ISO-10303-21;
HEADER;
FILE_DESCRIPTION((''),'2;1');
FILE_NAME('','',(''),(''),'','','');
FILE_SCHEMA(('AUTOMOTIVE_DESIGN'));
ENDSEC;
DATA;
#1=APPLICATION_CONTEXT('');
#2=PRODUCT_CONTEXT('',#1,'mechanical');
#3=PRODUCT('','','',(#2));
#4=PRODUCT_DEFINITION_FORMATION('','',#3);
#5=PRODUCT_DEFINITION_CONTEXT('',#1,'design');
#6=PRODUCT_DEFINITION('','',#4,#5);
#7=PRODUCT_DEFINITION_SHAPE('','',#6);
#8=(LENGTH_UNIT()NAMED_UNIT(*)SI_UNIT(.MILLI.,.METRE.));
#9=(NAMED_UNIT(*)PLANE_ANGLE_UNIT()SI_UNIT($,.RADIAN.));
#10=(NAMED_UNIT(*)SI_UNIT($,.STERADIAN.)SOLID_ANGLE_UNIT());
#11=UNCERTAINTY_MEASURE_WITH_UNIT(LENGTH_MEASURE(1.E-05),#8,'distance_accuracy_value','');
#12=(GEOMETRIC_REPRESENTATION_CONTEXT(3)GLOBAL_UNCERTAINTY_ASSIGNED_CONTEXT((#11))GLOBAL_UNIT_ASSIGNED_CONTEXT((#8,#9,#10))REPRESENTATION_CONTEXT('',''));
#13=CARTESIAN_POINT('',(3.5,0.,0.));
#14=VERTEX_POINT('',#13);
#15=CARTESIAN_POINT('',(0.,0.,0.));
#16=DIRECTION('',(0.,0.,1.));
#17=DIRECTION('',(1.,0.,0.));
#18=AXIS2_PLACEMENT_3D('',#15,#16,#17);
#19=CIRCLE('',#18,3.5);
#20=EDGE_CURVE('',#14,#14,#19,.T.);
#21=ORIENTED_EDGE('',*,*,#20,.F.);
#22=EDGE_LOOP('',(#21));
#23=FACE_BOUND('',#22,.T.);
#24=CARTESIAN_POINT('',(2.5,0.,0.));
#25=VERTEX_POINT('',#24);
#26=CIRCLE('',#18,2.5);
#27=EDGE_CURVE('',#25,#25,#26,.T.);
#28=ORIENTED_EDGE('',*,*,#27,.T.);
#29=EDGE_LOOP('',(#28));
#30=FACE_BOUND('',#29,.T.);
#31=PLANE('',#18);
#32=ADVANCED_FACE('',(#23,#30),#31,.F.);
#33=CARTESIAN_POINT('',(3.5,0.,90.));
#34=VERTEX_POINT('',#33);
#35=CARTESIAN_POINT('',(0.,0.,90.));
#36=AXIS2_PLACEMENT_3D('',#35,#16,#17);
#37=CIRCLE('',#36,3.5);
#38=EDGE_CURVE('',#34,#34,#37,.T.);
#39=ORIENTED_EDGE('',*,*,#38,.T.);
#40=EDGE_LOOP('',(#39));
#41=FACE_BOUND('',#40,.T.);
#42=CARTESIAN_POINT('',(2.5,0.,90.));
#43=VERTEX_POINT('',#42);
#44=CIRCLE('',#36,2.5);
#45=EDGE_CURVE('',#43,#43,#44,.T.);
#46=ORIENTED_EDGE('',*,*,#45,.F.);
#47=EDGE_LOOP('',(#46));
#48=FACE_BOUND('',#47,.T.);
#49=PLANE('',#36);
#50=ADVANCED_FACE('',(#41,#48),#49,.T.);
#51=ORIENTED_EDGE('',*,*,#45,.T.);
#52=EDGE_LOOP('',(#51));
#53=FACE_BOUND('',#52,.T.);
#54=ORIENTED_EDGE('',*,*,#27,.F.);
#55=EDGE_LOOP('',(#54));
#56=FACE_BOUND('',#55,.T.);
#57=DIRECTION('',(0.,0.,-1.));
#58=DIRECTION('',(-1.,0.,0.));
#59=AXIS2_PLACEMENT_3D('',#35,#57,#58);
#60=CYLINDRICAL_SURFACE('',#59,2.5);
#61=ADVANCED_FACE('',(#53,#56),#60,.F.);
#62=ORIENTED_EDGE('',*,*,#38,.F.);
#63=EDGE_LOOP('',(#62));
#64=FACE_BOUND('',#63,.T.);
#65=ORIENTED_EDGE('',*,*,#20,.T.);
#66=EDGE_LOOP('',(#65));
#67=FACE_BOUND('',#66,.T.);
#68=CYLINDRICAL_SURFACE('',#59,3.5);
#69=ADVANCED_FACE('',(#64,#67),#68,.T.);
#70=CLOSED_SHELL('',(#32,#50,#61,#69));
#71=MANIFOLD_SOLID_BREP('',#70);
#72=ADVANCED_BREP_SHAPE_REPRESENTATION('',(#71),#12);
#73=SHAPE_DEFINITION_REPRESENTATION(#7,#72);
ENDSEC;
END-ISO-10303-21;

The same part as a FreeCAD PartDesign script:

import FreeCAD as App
import Part
import Sketcher

V = App.Vector
Q = App.Units.Quantity

doc = App.newDocument("Part")
body = doc.addObject("PartDesign::Body", "Body")

# Sketch on XY plane
sketch1 = body.newObject("Sketcher::SketchObject", "Sketch")
sketch1.AttachmentSupport = (doc.getObject("XY_Plane"), [""])
sketch1.MapMode = "FlatFace"
sketch1.addGeometry([
    Part.Circle(V(0, 0, 0), V(0, 0, 1), 3.5),
    Part.Circle(V(0, 0, 0), V(0, 0, 1), 2.5),
], False)
sketch1.addConstraint([
    Sketcher.Constraint("Coincident", 0, 3, -1, 1),
    Sketcher.Constraint("Coincident", 1, 3, -1, 1),
    Sketcher.Constraint("Diameter", 0, Q("7 mm")),
    Sketcher.Constraint("Diameter", 1, Q("5 mm")),
])
pad1 = body.newObject("PartDesign::Pad", "Pad")
pad1.Profile = sketch1
pad1.Length = 90

doc.recompute()
